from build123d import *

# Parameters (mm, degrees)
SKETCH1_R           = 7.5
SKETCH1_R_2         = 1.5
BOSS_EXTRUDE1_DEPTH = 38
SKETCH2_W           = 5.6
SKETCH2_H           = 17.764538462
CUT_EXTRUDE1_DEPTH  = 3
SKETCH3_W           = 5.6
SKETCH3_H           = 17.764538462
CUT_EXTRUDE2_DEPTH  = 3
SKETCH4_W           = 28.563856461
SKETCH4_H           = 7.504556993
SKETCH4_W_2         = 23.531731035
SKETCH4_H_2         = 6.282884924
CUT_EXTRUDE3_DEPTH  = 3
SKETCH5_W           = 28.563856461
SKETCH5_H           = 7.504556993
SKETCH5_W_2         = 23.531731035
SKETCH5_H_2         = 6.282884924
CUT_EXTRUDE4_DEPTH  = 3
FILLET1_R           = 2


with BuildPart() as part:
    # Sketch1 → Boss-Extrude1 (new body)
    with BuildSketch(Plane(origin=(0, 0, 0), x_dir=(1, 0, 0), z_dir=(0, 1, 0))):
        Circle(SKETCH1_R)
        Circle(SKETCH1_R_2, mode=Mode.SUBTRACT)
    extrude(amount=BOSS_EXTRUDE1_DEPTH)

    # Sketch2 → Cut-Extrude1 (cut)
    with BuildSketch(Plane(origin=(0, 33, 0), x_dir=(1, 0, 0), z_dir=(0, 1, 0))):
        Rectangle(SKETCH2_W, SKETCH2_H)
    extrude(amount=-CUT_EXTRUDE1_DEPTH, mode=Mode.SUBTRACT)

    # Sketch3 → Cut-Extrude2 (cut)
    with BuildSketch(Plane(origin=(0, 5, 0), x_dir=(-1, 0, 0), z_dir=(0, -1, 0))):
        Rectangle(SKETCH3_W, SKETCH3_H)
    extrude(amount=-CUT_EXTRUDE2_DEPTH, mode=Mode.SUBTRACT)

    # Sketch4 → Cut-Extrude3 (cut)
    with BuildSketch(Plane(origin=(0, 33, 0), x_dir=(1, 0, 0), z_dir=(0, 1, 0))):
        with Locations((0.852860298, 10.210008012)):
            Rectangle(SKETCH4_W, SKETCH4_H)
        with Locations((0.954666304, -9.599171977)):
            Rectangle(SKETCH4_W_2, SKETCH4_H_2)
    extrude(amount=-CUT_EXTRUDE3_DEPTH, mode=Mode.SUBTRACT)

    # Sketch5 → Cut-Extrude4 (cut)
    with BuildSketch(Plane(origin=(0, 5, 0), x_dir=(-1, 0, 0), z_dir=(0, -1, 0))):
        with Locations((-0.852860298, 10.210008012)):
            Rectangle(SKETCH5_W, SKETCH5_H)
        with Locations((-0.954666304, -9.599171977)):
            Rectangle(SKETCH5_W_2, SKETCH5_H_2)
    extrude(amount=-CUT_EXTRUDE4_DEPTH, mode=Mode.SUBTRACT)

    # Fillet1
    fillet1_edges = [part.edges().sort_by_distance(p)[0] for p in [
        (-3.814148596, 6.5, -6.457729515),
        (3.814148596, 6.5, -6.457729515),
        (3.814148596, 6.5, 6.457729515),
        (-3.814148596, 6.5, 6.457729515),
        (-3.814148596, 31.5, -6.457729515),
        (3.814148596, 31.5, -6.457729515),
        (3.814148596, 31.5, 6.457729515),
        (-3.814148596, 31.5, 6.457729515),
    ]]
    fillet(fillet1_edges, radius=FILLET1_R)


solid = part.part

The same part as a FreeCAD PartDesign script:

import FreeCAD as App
import Part
import Sketcher
Q = App.Units.Quantity


def edges_at(feature, points):
    """Names of the edges that pass closest to the given points."""
    edges = feature.Shape.Edges
    near = lambda p: min(range(len(edges)), key=lambda i: edges[i].distToShape(Part.Vertex(*p))[0])
    return sorted({f"Edge{near(p) + 1}" for p in points})


def add_polygon(sketch, points):
    """Adds a closed chain of lines whose ends are joined by coincident constraints."""
    first, n = sketch.GeometryCount, len(points)
    for a, b in zip(points, points[1:] + points[:1]):
        sketch.addGeometry(Part.LineSegment(App.Vector(*a, 0), App.Vector(*b, 0)), False)
    for i in range(n):
        sketch.addConstraint(Sketcher.Constraint("Coincident", first + i, 2, first + (i + 1) % n, 1))

doc = App.newDocument("Part")
params = doc.addObject("Spreadsheet::Sheet", "Params")
for row, (alias, value) in enumerate([
    ("sketch1_diameter", "15 mm"),
    ("sketch1_diameter2", "3 mm"),
    ("pad1_length", "38 mm"),
    ("sketch2_width", "5.6 mm"),
    ("pocket1_length", "3 mm"),
    ("sketch3_width", "5.6 mm"),
    ("pocket2_length", "3 mm"),
    ("pocket3_length", "3 mm"),
    ("pocket4_length", "3 mm"),
    ("fillet_radius", "2 mm"),
], start=1):
    params.set(f"A{row}", alias)
    params.set(f"B{row}", "=" + value)
    params.setAlias(f"B{row}", alias)

body = doc.addObject("PartDesign::Body", "Body")

# Sketch on XZ plane
sketch1 = body.newObject("Sketcher::SketchObject", "Sketch")
sketch1.AttachmentSupport = (doc.getObject("XZ_Plane"), [""])
sketch1.MapMode = "FlatFace"
sketch1.addGeometry([
    Part.Circle(App.Vector(0, 0, 0), App.Vector(0, 0, 1), 7.5),
    Part.Circle(App.Vector(0, 0, 0), App.Vector(0, 0, 1), 1.5),
], False)
sketch1.addConstraint([
    Sketcher.Constraint("Coincident", 0, 3, -1, 1),
    Sketcher.Constraint("Coincident", 1, 3, -1, 1),
    Sketcher.Constraint("Diameter", 0, Q("15 mm")),
    Sketcher.Constraint("Diameter", 1, Q("3 mm")),
])
sketch1.setExpression("Constraints[2]", "Params.sketch1_diameter")
sketch1.setExpression("Constraints[3]", "Params.sketch1_diameter2")
pad1 = body.newObject("PartDesign::Pad", "Pad")
pad1.Profile = sketch1
pad1.setExpression("Length", "Params.pad1_length")
pad1.Reversed = True

# Sketch on XZ plane
sketch2 = body.newObject("Sketcher::SketchObject", "Sketch001")
sketch2.AttachmentSupport = (doc.getObject("XZ_Plane"), [""])
sketch2.MapMode = "FlatFace"
sketch2.AttachmentOffset = App.Placement(App.Vector(0, 0, -33), App.Rotation())
add_polygon(sketch2, [(-2.8, -8.882269), (-2.8, 8.882269), (2.8, 8.882269), (2.8, -8.882269)])  # lines 0-3
sketch2.addConstraint([
    Sketcher.Constraint("Vertical", 0),
    Sketcher.Constraint("Horizontal", 1),
    Sketcher.Constraint("Vertical", 2),
    Sketcher.Constraint("Horizontal", 3),
    Sketcher.Constraint("Symmetric", 0, 2, 2, 2, -1, 1),
    Sketcher.Constraint("DistanceX", 1, 1, 1, 2, Q("5.6 mm")),
    Sketcher.Constraint("DistanceY", 0, 1, 0, 2, Q("17.764538 mm")),
])
sketch2.setExpression("Constraints[9]", "Params.sketch2_width")
pocket1 = body.newObject("PartDesign::Pocket", "Pocket")
pocket1.Profile = sketch2
pocket1.setExpression("Length", "Params.pocket1_length")
pocket1.Reversed = True

# Sketch on XZ plane
sketch3 = body.newObject("Sketcher::SketchObject", "Sketch002")
sketch3.AttachmentSupport = (doc.getObject("XZ_Plane"), [""])
sketch3.MapMode = "FlatFace"
sketch3.AttachmentOffset = App.Placement(App.Vector(0, 0, -5), App.Rotation())
add_polygon(sketch3, [(2.8, -8.882269), (2.8, 8.882269), (-2.8, 8.882269), (-2.8, -8.882269)])  # lines 0-3
sketch3.addConstraint([
    Sketcher.Constraint("Vertical", 0),
    Sketcher.Constraint("Horizontal", 1),
    Sketcher.Constraint("Vertical", 2),
    Sketcher.Constraint("Horizontal", 3),
    Sketcher.Constraint("Symmetric", 0, 2, 2, 2, -1, 1),
    Sketcher.Constraint("DistanceX", 1, 2, 1, 1, Q("5.6 mm")),
    Sketcher.Constraint("DistanceY", 0, 1, 0, 2, Q("17.764538 mm")),
])
sketch3.setExpression("Constraints[9]", "Params.sketch3_width")
pocket2 = body.newObject("PartDesign::Pocket", "Pocket001")
pocket2.Profile = sketch3
pocket2.setExpression("Length", "Params.pocket2_length")

# Sketch on XZ plane
sketch4 = body.newObject("Sketcher::SketchObject", "Sketch003")
sketch4.AttachmentSupport = (doc.getObject("XZ_Plane"), [""])
sketch4.MapMode = "FlatFace"
sketch4.AttachmentOffset = App.Placement(App.Vector(0, 0, -33), App.Rotation())
add_polygon(sketch4, [(-13.429068, -13.962287), (-13.429068, -6.45773), (15.134789, -6.45773), (15.134789, -13.962287)])  # lines 0-3
add_polygon(sketch4, [(-10.811199, 6.45773), (-10.811199, 12.740614), (12.720532, 12.740614), (12.720532, 6.45773)])  # lines 4-7
sketch4.addConstraint([
    Sketcher.Constraint("Vertical", 0),
    Sketcher.Constraint("Horizontal", 1),
    Sketcher.Constraint("Vertical", 2),
    Sketcher.Constraint("Horizontal", 3),
    Sketcher.Constraint("Vertical", 4),
    Sketcher.Constraint("Horizontal", 5),
    Sketcher.Constraint("Vertical", 6),
    Sketcher.Constraint("Horizontal", 7),
    Sketcher.Constraint("DistanceX", 5, 1, 5, 2, Q("23.531731 mm")),
    Sketcher.Constraint("DistanceX", 4, 2, -1, 1, Q("10.811199 mm")),
    Sketcher.Constraint("DistanceY", 3, 2, 4, 2, Q("26.702901 mm")),
    Sketcher.Constraint("DistanceX", 0, 2, 5, 2, Q("26.1496 mm")),
    Sketcher.Constraint("DistanceX", 1, 1, 1, 2, Q("28.563856 mm")),
    Sketcher.Constraint("DistanceY", 0, 1, 0, 2, Q("7.504557 mm")),
    Sketcher.Constraint("DistanceY", 4, 1, 4, 2, Q("6.282885 mm")),
    Sketcher.Constraint("DistanceY", 0, 2, -1, 1, Q("6.45773 mm")),
])
pocket3 = body.newObject("PartDesign::Pocket", "Pocket002")
pocket3.Profile = sketch4
pocket3.setExpression("Length", "Params.pocket3_length")
pocket3.Reversed = True

# Sketch on XZ plane
sketch5 = body.newObject("Sketcher::SketchObject", "Sketch004")
sketch5.AttachmentSupport = (doc.getObject("XZ_Plane"), [""])
sketch5.MapMode = "FlatFace"
sketch5.AttachmentOffset = App.Placement(App.Vector(0, 0, -5), App.Rotation())
add_polygon(sketch5, [(15.134789, -13.962287), (15.134789, -6.45773), (-13.429068, -6.45773), (-13.429068, -13.962287)])  # lines 0-3
add_polygon(sketch5, [(12.720532, 6.45773), (12.720532, 12.740614), (-10.811199, 12.740614), (-10.811199, 6.45773)])  # lines 4-7
sketch5.addConstraint([
    Sketcher.Constraint("Vertical", 0),
    Sketcher.Constraint("Horizontal", 1),
    Sketcher.Constraint("Vertical", 2),
    Sketcher.Constraint("Horizontal", 3),
    Sketcher.Constraint("Vertical", 4),
    Sketcher.Constraint("Horizontal", 5),
    Sketcher.Constraint("Vertical", 6),
    Sketcher.Constraint("Horizontal", 7),
    Sketcher.Constraint("DistanceX", 5, 2, 5, 1, Q("23.531731 mm")),
    Sketcher.Constraint("DistanceX", 5, 2, -1, 1, Q("10.811199 mm")),
    Sketcher.Constraint("DistanceY", 3, 2, 4, 2, Q("26.702901 mm")),
    Sketcher.Constraint("DistanceX", 1, 2, 4, 2, Q("26.1496 mm")),
    Sketcher.Constraint("DistanceX", 1, 2, 1, 1, Q("28.563856 mm")),
    Sketcher.Constraint("DistanceY", 0, 1, 0, 2, Q("7.504557 mm")),
    Sketcher.Constraint("DistanceY", 4, 1, 4, 2, Q("6.282885 mm")),
    Sketcher.Constraint("DistanceY", 0, 2, -1, 1, Q("6.45773 mm")),
])
pocket4 = body.newObject("PartDesign::Pocket", "Pocket003")
pocket4.Profile = sketch5
pocket4.setExpression("Length", "Params.pocket4_length")
doc.recompute()

fillet = body.newObject("PartDesign::Fillet", "Fillet")
fillet.Base = (pocket4, edges_at(pocket4, [
    (-3.814, 6.5, -6.458),
    (3.814, 6.5, -6.458),
    (3.814, 6.5, 6.458),
    (-3.814, 6.5, 6.458),
    (-3.814, 31.5, -6.458),
    (3.814, 31.5, -6.458),
    (3.814, 31.5, 6.458),
    (-3.814, 31.5, 6.458),
]))
fillet.setExpression("Radius", "Params.fillet_radius")

doc.recompute()
